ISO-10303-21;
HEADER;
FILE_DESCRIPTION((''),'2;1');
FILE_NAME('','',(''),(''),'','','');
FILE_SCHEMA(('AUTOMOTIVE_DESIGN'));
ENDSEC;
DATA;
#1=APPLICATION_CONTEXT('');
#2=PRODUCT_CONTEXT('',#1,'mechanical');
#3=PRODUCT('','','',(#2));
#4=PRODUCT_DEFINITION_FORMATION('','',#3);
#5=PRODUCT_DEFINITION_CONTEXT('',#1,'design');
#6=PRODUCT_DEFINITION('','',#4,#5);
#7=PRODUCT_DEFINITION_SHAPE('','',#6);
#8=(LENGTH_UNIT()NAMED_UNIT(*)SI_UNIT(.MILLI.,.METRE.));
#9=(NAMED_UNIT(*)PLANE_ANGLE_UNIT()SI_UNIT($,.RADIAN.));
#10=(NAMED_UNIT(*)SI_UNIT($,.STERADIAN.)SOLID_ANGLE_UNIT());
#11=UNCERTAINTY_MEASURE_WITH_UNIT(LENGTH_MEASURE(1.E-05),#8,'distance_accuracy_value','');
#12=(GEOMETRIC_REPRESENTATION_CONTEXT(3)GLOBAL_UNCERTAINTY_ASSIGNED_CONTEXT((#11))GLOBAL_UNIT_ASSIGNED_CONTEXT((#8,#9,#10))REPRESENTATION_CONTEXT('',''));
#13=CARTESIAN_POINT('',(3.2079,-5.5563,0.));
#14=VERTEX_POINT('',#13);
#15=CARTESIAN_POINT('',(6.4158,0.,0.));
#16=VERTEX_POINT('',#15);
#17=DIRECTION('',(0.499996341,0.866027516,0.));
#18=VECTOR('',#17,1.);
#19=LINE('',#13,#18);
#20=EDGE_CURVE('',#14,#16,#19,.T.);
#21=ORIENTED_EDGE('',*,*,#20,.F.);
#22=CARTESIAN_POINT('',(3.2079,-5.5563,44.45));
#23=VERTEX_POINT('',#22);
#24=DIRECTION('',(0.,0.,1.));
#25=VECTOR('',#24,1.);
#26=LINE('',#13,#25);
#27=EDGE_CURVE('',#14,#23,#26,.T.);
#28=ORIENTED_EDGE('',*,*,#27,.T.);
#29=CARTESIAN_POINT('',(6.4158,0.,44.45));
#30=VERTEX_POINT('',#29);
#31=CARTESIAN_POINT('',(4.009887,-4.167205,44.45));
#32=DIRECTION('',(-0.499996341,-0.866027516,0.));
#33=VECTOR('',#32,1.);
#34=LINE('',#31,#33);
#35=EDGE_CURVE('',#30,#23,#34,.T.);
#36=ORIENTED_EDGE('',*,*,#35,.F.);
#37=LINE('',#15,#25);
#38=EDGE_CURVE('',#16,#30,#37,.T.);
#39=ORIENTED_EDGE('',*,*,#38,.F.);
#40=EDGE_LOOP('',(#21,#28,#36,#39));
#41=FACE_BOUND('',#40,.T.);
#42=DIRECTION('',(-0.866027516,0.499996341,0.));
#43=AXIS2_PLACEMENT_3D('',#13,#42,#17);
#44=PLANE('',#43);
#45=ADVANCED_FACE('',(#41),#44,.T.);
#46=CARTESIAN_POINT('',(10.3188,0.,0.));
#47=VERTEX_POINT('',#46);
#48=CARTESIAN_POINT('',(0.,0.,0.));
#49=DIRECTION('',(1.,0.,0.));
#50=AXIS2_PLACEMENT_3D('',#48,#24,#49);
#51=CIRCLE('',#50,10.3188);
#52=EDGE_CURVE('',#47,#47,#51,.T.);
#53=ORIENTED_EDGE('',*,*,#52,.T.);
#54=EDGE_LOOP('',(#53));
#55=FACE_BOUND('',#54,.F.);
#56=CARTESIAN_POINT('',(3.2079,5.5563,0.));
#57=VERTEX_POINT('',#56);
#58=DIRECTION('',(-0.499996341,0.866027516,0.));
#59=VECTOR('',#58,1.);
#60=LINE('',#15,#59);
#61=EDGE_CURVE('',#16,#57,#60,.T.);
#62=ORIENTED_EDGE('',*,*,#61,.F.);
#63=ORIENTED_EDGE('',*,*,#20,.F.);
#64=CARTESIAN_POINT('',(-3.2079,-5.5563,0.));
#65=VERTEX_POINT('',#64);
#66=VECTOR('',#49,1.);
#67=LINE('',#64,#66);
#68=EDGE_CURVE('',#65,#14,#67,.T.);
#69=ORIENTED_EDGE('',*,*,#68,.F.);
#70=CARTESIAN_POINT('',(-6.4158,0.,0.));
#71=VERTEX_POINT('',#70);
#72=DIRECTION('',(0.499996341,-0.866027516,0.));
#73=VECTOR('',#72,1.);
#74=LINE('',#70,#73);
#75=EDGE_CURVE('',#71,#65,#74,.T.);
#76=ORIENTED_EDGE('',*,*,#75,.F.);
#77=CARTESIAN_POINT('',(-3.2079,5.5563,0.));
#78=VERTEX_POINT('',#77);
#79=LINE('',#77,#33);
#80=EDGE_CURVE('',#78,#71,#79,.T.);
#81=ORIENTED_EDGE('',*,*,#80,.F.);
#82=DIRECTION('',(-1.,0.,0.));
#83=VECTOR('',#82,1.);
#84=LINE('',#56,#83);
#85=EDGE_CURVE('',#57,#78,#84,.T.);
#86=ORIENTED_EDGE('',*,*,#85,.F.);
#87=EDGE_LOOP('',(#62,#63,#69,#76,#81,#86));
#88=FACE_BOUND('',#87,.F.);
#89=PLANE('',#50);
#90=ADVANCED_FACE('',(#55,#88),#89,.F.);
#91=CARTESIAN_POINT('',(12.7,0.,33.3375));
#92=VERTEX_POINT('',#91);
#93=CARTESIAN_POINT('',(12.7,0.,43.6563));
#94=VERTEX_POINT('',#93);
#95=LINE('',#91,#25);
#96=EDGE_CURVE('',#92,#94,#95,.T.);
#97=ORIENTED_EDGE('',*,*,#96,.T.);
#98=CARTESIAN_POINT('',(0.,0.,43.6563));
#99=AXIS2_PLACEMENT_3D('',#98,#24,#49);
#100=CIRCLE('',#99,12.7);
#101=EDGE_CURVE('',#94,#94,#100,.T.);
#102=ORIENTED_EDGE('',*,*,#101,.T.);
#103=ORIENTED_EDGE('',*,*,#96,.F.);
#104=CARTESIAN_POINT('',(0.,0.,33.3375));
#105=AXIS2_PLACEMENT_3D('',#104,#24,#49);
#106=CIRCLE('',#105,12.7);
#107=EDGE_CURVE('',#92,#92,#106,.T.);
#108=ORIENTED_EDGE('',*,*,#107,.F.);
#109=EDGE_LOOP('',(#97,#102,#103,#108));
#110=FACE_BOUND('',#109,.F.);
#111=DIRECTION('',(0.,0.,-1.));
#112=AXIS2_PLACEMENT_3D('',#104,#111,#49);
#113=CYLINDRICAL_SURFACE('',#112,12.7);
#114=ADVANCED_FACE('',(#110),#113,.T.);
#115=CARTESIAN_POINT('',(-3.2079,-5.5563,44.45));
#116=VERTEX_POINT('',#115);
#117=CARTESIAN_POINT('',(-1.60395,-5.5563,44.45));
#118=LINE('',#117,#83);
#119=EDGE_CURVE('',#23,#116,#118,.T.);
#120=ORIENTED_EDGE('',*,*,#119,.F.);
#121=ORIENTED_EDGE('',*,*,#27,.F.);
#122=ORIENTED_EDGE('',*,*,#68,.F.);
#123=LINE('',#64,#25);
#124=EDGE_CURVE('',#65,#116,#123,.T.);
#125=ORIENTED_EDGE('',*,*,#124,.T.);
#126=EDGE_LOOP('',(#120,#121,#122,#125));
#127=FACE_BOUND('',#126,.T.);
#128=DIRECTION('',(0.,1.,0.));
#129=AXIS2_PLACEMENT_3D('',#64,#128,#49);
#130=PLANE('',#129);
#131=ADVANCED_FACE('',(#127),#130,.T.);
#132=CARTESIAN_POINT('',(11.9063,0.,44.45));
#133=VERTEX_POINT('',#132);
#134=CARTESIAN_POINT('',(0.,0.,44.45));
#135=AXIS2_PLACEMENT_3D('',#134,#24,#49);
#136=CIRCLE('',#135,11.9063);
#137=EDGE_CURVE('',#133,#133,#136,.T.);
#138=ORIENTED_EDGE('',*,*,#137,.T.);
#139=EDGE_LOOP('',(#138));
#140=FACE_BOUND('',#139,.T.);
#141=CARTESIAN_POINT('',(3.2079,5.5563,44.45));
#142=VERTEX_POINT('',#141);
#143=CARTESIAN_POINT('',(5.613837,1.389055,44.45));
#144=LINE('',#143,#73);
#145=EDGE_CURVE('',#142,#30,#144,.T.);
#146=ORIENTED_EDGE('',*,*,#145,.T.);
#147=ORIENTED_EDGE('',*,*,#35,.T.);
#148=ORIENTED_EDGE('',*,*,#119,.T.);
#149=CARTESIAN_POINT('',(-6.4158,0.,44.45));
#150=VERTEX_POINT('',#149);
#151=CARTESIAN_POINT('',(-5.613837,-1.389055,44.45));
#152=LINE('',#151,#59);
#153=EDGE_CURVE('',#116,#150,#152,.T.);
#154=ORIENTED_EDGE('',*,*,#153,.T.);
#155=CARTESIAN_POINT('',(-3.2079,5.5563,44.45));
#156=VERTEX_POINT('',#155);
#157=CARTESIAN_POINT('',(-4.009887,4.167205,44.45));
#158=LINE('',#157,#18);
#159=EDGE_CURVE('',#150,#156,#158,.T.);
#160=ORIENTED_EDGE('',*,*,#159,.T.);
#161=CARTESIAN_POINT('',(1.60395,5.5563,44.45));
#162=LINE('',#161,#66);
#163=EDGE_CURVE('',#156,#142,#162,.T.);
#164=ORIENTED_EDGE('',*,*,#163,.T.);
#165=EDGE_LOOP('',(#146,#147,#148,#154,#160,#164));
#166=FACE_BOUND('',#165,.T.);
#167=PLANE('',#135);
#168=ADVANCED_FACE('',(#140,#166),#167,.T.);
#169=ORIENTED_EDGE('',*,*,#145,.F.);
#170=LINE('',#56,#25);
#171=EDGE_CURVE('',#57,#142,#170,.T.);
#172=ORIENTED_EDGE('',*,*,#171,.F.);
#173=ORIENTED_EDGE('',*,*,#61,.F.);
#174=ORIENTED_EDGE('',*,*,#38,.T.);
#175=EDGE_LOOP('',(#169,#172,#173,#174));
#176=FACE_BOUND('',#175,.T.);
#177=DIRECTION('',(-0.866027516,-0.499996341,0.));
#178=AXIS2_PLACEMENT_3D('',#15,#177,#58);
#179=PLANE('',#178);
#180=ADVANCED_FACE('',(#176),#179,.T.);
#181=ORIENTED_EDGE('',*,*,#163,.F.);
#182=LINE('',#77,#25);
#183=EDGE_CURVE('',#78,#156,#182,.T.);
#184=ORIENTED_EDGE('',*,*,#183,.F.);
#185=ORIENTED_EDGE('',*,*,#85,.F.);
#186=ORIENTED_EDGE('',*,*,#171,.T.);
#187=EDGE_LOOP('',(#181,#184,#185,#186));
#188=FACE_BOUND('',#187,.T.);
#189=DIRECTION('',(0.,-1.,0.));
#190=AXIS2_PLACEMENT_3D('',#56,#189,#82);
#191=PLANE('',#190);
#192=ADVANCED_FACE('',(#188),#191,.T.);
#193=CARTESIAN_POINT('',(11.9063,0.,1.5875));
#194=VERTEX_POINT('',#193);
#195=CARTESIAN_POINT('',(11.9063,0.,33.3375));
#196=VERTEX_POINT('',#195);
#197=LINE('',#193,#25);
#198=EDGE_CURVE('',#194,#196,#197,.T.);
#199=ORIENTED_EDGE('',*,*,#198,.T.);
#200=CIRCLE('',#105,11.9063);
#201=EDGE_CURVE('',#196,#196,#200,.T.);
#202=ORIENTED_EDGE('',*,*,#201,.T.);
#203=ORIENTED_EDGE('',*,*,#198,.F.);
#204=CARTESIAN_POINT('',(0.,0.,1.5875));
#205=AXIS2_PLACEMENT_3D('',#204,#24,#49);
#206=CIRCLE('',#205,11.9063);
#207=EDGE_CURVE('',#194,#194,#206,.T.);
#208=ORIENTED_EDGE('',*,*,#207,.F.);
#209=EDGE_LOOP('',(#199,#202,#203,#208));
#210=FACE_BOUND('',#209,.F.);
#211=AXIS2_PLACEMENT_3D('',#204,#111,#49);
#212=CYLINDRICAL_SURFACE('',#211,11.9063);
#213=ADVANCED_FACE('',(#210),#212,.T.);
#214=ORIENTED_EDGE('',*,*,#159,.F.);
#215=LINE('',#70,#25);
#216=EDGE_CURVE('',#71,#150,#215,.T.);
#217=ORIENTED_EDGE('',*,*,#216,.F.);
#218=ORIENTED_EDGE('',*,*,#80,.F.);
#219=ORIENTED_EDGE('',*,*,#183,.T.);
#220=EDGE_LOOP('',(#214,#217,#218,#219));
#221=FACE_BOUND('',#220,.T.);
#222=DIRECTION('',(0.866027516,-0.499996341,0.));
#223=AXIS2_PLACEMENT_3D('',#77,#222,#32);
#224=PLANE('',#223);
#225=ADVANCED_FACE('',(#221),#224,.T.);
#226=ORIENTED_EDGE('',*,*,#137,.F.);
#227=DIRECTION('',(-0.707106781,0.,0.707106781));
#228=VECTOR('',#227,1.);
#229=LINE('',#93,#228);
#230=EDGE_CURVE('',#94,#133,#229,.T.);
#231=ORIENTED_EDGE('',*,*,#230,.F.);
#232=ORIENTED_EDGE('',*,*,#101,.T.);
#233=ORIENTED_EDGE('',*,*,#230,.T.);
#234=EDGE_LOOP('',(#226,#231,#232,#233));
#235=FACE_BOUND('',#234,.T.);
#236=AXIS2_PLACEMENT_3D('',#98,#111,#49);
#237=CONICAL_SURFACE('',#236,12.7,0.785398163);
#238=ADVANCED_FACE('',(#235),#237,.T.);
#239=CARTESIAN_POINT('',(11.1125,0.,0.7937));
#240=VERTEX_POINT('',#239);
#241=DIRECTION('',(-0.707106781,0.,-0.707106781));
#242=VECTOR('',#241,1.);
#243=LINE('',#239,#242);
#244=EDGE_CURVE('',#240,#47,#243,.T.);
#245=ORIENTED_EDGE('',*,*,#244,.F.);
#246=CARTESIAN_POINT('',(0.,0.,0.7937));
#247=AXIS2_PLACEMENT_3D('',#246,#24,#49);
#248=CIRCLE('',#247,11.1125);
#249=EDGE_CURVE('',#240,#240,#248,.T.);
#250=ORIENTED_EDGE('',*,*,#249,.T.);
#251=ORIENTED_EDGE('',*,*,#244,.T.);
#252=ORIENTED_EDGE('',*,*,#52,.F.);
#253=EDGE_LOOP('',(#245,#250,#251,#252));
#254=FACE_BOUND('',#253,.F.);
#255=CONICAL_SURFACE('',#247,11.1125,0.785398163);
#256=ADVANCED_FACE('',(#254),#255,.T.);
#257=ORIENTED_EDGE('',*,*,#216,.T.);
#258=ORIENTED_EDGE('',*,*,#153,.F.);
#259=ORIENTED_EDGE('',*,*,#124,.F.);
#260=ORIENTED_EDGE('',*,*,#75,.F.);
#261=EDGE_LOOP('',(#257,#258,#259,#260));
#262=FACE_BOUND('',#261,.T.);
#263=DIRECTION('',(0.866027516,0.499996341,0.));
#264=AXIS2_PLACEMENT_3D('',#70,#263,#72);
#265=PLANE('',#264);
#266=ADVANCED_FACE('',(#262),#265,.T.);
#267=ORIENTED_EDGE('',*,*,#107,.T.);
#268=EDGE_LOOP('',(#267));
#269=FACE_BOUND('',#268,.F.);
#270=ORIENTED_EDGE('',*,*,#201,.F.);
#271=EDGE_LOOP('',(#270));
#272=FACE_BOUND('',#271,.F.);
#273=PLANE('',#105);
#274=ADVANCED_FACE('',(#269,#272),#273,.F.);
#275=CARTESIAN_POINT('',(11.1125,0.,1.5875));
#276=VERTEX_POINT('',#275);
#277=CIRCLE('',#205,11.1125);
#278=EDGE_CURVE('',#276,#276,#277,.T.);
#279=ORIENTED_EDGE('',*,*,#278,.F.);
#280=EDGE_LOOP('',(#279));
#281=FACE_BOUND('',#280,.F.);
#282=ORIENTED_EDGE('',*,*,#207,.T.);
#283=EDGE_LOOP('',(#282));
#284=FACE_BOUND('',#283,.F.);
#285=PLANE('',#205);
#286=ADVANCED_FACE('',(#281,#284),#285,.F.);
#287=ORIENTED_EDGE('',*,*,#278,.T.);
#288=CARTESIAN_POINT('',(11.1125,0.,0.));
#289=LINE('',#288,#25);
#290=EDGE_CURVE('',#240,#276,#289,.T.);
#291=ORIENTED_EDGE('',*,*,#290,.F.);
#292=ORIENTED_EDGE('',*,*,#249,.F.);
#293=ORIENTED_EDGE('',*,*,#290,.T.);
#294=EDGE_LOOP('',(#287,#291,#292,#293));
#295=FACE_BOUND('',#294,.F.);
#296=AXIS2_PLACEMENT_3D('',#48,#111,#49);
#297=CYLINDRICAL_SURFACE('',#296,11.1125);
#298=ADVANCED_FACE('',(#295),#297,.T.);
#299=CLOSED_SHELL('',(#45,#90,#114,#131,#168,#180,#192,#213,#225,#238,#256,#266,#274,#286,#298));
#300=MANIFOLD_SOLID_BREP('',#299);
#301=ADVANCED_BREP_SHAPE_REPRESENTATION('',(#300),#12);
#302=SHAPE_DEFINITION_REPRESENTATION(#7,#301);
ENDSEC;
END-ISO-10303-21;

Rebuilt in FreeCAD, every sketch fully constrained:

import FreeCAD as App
import Part
import Sketcher
from FreeCAD import Vector
Q = App.Units.Quantity


def edges_at(feature, points):
    """Names of the edges that pass closest to the given points."""
    edges = feature.Shape.Edges
    near = lambda p: min(range(len(edges)), key=lambda i: edges[i].distToShape(Part.Vertex(*p))[0])
    return sorted({f"Edge{near(p) + 1}" for p in points})


def add_polygon(sketch, points):
    """Adds a closed chain of lines whose ends are joined by coincident constraints."""
    first, n = sketch.GeometryCount, len(points)
    for a, b in zip(points, points[1:] + points[:1]):
        sketch.addGeometry(Part.LineSegment(App.Vector(*a, 0), App.Vector(*b, 0)), False)
    for i in range(n):
        sketch.addConstraint(Sketcher.Constraint("Coincident", first + i, 2, first + (i + 1) % n, 1))

doc = App.newDocument("Part")
body = doc.addObject("PartDesign::Body", "Body")

# Sketch on XY plane
sketch1 = body.newObject("Sketcher::SketchObject", "Sketch")
sketch1.AttachmentSupport = (doc.getObject("XY_Plane"), [""])
sketch1.MapMode = "FlatFace"
sketch1.addGeometry(Part.Circle(Vector(0, 0, 0), Vector(0, 0, 1), 11), False)
sketch1.addConstraint(Sketcher.Constraint("Coincident", 0, 3, -1, 1))
sketch1.addConstraint(Sketcher.Constraint("Diameter", 0, Q("0.875 in")))
pad1 = body.newObject("PartDesign::Pad", "Pad")
pad1.Profile = sketch1
pad1.Length = Q("0.0625 in")

# Sketch on XY plane
sketch2 = body.newObject("Sketcher::SketchObject", "Sketch001")
sketch2.AttachmentSupport = (doc.getObject("XY_Plane"), [""])
sketch2.MapMode = "FlatFace"
sketch2.AttachmentOffset = App.Placement(Vector(0, 0, 0.0625 * 25.4), App.Rotation())
sketch2.addGeometry(Part.Circle(Vector(0, 0, 0), Vector(0, 0, 1), 12), False)
sketch2.addConstraint(Sketcher.Constraint("Coincident", 0, 3, -1, 1))
sketch2.addConstraint(Sketcher.Constraint("Diameter", 0, Q("0.9375 in")))
pad2 = body.newObject("PartDesign::Pad", "Pad001")
pad2.Profile = sketch2
pad2.Length = Q("1.25 in")

# Sketch on XY plane
sketch3 = body.newObject("Sketcher::SketchObject", "Sketch002")
sketch3.AttachmentSupport = (doc.getObject("XY_Plane"), [""])
sketch3.MapMode = "FlatFace"
sketch3.AttachmentOffset = App.Placement(Vector(0, 0, 1.3125 * 25.4), App.Rotation())
sketch3.addGeometry(Part.Circle(Vector(0, 0, 0), Vector(0, 0, 1), 13), False)
sketch3.addConstraint(Sketcher.Constraint("Coincident", 0, 3, -1, 1))
sketch3.addConstraint(Sketcher.Constraint("Diameter", 0, Q("1 in")))
pad3 = body.newObject("PartDesign::Pad", "Pad002")
pad3.Profile = sketch3
pad3.Length = Q("0.4375 in")

# Sketch on XY plane
sketch4 = body.newObject("Sketcher::SketchObject", "Sketch003")
sketch4.AttachmentSupport = (doc.getObject("XY_Plane"), [""])
sketch4.MapMode = "FlatFace"
add_polygon(sketch4, [(-6, 0), (-3, 6), (3, 6), (6, 0), (3, -6), (-3, -6)])  # lines 0-5
sketch4.addConstraint(Sketcher.Constraint("Horizontal", 1))
sketch4.addConstraint(Sketcher.Constraint("Horizontal", 4))
sketch4.addConstraint(Sketcher.Constraint("Symmetric", 0, 2, 3, 2, -1, 1))
sketch4.addConstraint(Sketcher.Constraint("Symmetric", 2, 2, 5, 2, -1, 1))
sketch4.addConstraint(Sketcher.Constraint("PointOnObject", 2, 2, -1))
sketch4.addConstraint(Sketcher.Constraint("Parallel", 2, 5))
sketch4.addConstraint(Sketcher.Constraint("Vertical", 1, 2, 3, 2))
sketch4.addConstraint(Sketcher.Constraint("Angle", 0, Q("60.0002 deg")))
sketch4.addConstraint(Sketcher.Constraint("DistanceY", 3, 2, 1, 2, Q("0.4375 in")))
sketch4.addConstraint(Sketcher.Constraint("DistanceX", 1, 1, 1, 2, Q("0.2526 in")))
pocket1 = body.newObject("PartDesign::Pocket", "Pocket")
pocket1.Profile = sketch4
pocket1.Type = "ThroughAll"
pocket1.Reversed = True
doc.recompute()

chamfer = body.newObject("PartDesign::Chamfer", "Chamfer")
chamfer.Base = (pocket1, edges_at(pocket1, [(-11.113, 0, 0), (-12.7, 0, 44.45)]))
chamfer.Size = Q("0.031248 in")

doc.recompute()
